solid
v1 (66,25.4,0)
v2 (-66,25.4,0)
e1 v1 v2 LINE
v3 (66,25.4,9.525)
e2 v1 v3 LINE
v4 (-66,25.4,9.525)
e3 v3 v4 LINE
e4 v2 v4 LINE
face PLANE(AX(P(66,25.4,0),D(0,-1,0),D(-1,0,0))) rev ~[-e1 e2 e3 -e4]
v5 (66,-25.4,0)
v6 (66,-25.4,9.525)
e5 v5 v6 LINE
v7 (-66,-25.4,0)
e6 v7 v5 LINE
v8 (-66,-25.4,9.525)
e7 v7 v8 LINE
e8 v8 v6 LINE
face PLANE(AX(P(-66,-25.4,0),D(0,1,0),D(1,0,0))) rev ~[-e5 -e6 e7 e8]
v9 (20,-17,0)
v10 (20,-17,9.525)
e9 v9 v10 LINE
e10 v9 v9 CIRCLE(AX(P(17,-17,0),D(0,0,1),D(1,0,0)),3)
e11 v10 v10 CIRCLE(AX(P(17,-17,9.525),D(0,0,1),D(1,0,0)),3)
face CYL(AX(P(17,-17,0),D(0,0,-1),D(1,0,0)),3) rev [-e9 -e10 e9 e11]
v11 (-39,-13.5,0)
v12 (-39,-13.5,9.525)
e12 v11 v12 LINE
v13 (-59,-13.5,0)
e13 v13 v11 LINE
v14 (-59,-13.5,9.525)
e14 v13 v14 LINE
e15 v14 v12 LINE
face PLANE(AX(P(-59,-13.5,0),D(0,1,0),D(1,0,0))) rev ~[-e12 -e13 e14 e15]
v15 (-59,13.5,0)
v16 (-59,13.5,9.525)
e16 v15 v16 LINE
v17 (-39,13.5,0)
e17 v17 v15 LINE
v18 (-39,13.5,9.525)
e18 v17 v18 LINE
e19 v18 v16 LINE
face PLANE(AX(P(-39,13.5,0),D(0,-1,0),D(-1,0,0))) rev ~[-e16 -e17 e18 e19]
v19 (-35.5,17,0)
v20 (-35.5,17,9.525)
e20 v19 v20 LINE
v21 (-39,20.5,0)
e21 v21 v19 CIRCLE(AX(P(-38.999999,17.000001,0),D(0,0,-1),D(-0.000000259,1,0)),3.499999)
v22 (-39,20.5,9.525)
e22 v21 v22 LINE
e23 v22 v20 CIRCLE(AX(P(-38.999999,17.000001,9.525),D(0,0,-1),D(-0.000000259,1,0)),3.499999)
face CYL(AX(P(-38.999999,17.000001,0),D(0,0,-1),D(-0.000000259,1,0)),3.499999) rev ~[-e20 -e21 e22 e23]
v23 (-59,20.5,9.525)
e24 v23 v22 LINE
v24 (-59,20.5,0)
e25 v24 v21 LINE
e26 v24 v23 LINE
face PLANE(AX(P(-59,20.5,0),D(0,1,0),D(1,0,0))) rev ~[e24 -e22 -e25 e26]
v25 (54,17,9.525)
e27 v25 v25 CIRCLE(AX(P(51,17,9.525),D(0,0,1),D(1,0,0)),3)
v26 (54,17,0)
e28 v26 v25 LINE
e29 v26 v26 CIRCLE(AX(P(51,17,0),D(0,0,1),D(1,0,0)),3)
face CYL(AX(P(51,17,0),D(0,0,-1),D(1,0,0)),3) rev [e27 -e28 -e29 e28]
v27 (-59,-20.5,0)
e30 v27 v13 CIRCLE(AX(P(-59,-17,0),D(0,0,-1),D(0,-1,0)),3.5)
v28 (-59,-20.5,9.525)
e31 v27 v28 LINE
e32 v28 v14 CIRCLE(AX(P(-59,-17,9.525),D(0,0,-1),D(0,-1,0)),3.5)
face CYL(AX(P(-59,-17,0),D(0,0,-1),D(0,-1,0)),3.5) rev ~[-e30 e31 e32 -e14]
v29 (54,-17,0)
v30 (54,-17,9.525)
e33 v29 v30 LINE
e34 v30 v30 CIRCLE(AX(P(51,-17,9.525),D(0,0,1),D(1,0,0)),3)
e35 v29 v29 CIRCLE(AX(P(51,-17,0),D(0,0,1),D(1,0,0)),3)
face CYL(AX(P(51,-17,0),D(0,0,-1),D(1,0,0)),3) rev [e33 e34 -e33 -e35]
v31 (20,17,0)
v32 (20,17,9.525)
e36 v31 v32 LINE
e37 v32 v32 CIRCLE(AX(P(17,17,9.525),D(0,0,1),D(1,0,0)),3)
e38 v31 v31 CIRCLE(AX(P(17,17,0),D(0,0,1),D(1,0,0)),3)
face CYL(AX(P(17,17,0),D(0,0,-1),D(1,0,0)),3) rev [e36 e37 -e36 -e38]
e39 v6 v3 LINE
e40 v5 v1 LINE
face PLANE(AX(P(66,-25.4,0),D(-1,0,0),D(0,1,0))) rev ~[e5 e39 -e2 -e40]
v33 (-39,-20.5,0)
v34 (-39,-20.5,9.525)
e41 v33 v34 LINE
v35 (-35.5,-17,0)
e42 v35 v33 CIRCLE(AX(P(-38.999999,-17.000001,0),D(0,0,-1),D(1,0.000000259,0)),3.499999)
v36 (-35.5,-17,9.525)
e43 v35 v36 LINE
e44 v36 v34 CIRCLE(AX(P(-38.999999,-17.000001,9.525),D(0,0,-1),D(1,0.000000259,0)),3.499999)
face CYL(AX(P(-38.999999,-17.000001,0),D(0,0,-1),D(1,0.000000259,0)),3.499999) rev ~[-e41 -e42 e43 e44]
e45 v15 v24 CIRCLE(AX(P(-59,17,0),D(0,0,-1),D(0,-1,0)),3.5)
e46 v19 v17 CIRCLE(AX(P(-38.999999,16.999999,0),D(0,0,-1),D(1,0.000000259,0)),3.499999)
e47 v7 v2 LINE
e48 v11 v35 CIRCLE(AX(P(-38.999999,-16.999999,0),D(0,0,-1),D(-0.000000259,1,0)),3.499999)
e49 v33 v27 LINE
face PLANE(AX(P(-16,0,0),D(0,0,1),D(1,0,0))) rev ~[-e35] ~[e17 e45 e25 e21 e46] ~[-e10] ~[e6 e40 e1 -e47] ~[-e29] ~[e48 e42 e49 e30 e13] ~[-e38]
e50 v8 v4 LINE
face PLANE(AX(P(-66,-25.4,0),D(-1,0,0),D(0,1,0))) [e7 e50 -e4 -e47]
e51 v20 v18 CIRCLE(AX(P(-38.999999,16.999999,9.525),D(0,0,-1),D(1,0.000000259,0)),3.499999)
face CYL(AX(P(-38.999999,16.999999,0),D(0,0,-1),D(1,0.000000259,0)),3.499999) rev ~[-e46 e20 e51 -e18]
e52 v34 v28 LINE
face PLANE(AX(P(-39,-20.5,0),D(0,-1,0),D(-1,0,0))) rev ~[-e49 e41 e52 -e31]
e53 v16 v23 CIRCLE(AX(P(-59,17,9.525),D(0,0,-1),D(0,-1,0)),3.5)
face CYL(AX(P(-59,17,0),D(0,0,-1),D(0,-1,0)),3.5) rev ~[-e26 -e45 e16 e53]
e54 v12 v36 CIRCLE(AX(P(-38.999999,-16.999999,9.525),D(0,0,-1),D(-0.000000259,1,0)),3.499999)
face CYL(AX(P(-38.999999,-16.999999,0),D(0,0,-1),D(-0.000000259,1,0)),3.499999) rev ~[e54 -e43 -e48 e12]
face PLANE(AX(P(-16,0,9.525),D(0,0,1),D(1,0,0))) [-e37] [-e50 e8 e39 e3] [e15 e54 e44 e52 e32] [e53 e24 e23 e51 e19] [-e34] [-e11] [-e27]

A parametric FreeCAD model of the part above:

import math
import FreeCAD as App
import Part
import Sketcher
from FreeCAD import Vector

doc = App.newDocument("Part")
body = doc.addObject("PartDesign::Body", "Body")

sketch1 = body.newObject("Sketcher::SketchObject", "Sketch")
sketch1.AttachmentSupport = (doc.getObject("XY_Plane"), [""])
sketch1.MapMode = "FlatFace"
sketch1.addGeometry(Part.LineSegment(Vector(-66, 25.4, 0), Vector(-66, -25.4, 0)), False)
sketch1.addGeometry(Part.LineSegment(Vector(-66, -25.4, 0), Vector(66, -25.4, 0)), False)
sketch1.addGeometry(Part.LineSegment(Vector(66, -25.4, 0), Vector(66, 25.4, 0)), False)
sketch1.addGeometry(Part.LineSegment(Vector(66, 25.4, 0), Vector(-66, 25.4, 0)), False)
sketch1.addGeometry(Part.ArcOfCircle(Part.Circle(Vector(-59, -17, 0), Vector(0, 0, 1), 3.5), math.radians(90), math.radians(270)), False)
sketch1.addGeometry(Part.LineSegment(Vector(-59, -13.5, 0), Vector(-39, -13.5, 0)), False)
sketch1.addGeometry(Part.ArcOfCircle(Part.Circle(Vector(-39, -17, 0), Vector(0, 0, 1), 3.5), math.radians(0), math.radians(90)), False)
sketch1.addGeometry(Part.ArcOfCircle(Part.Circle(Vector(-39, -17, 0), Vector(0, 0, 1), 3.5), math.radians(-90), math.radians(0)), False)
sketch1.addGeometry(Part.LineSegment(Vector(-39, -20.5, 0), Vector(-59, -20.5, 0)), False)
sketch1.addGeometry(Part.Circle(Vector(17, -17, 0), Vector(0, 0, 1), 3), False)
sketch1.addGeometry(Part.Circle(Vector(51, -17, 0), Vector(0, 0, 1), 3), False)
sketch1.addGeometry(Part.LineSegment(Vector(-39, 13.5, 0), Vector(-59, 13.5, 0)), False)
sketch1.addGeometry(Part.ArcOfCircle(Part.Circle(Vector(-59, 17, 0), Vector(0, 0, 1), 3.5), math.radians(90), math.radians(270)), False)
sketch1.addGeometry(Part.LineSegment(Vector(-59, 20.5, 0), Vector(-39, 20.5, 0)), False)
sketch1.addGeometry(Part.ArcOfCircle(Part.Circle(Vector(-39, 17, 0), Vector(0, 0, 1), 3.5), math.radians(0), math.radians(90)), False)
sketch1.addGeometry(Part.ArcOfCircle(Part.Circle(Vector(-39, 17, 0), Vector(0, 0, 1), 3.5), math.radians(-90), math.radians(0)), False)
sketch1.addGeometry(Part.Circle(Vector(17, 17, 0), Vector(0, 0, 1), 3), False)
sketch1.addGeometry(Part.Circle(Vector(51, 17, 0), Vector(0, 0, 1), 3), False)
sketch1.addConstraint(Sketcher.Constraint("Coincident", 0, 2, 1, 1))
sketch1.addConstraint(Sketcher.Constraint("Coincident", 1, 2, 2, 1))
sketch1.addConstraint(Sketcher.Constraint("Coincident", 2, 2, 3, 1))
sketch1.addConstraint(Sketcher.Constraint("Coincident", 3, 2, 0, 1))
sketch1.addConstraint(Sketcher.Constraint("Tangent", 4, 1, 5, 1))
sketch1.addConstraint(Sketcher.Constraint("Tangent", 5, 2, 6, 2))
sketch1.addConstraint(Sketcher.Constraint("Tangent", 6, 1, 7, 2))
sketch1.addConstraint(Sketcher.Constraint("Tangent", 7, 1, 8, 1))
sketch1.addConstraint(Sketcher.Constraint("Tangent", 8, 2, 4, 2))
sketch1.addConstraint(Sketcher.Constraint("Tangent", 11, 2, 12, 2))
sketch1.addConstraint(Sketcher.Constraint("Tangent", 12, 1, 13, 1))
sketch1.addConstraint(Sketcher.Constraint("Tangent", 13, 2, 14, 2))
sketch1.addConstraint(Sketcher.Constraint("Tangent", 14, 1, 15, 2))
sketch1.addConstraint(Sketcher.Constraint("Tangent", 15, 1, 11, 1))
sketch1.addConstraint(Sketcher.Constraint("Vertical", 0))
sketch1.addConstraint(Sketcher.Constraint("Horizontal", 1))
sketch1.addConstraint(Sketcher.Constraint("Vertical", 2))
sketch1.addConstraint(Sketcher.Constraint("Horizontal", 3))
sketch1.addConstraint(Sketcher.Constraint("Horizontal", 5))
sketch1.addConstraint(Sketcher.Constraint("Horizontal", 8))
sketch1.addConstraint(Sketcher.Constraint("Horizontal", 11))
sketch1.addConstraint(Sketcher.Constraint("Horizontal", 13))
sketch1.addConstraint(Sketcher.Constraint("Equal", 4, 6))
sketch1.addConstraint(Sketcher.Constraint("Equal", 9, 10))
sketch1.addConstraint(Sketcher.Constraint("Equal", 7, 12))
sketch1.addConstraint(Sketcher.Constraint("Equal", 12, 14))
sketch1.addConstraint(Sketcher.Constraint("Equal", 10, 16))
sketch1.addConstraint(Sketcher.Constraint("Equal", 16, 17))
sketch1.addConstraint(Sketcher.Constraint("Symmetric", 0, 2, 2, 2, -1, 1))
sketch1.addConstraint(Sketcher.Constraint("Symmetric", 4, 3, 12, 3, -1))
sketch1.addConstraint(Sketcher.Constraint("Symmetric", 9, 3, 16, 3, -1))
sketch1.addConstraint(Sketcher.Constraint("Symmetric", 10, 3, 17, 3, -1))
sketch1.addConstraint(Sketcher.Constraint("Symmetric", 6, 1, 14, 1, -1))
sketch1.addConstraint(Sketcher.Constraint("Horizontal", 7, 3, 9, 3))
sketch1.addConstraint(Sketcher.Constraint("Horizontal", 9, 3, 10, 3))
sketch1.addConstraint(Sketcher.Constraint("Horizontal", 10, 3, 6, 1))
sketch1.addConstraint(Sketcher.Constraint("Diameter", 9, 6.0))
sketch1.addConstraint(Sketcher.Constraint("Radius", 4, 3.5))
sketch1.addConstraint(Sketcher.Constraint("DistanceX", 1, 1, 1, 2, 132.0))
sketch1.addConstraint(Sketcher.Constraint("DistanceX", 5, 1, 5, 2, 20.0))
sketch1.addConstraint(Sketcher.Constraint("DistanceY", 0, 2, 0, 1, 50.8))
sketch1.addConstraint(Sketcher.Constraint("DistanceX", 4, 3, -1, 1, 59.0))
sketch1.addConstraint(Sketcher.Constraint("DistanceY", 4, 3, -1, 1, 17.0))
sketch1.addConstraint(Sketcher.Constraint("DistanceX", -1, 1, 9, 3, 17.0))
sketch1.addConstraint(Sketcher.Constraint("DistanceX", -1, 1, 10, 3, 51.0))
pad1 = body.newObject("PartDesign::Pad", "Pad")
pad1.Profile = sketch1
pad1.Length = 9.525

doc.recompute()
